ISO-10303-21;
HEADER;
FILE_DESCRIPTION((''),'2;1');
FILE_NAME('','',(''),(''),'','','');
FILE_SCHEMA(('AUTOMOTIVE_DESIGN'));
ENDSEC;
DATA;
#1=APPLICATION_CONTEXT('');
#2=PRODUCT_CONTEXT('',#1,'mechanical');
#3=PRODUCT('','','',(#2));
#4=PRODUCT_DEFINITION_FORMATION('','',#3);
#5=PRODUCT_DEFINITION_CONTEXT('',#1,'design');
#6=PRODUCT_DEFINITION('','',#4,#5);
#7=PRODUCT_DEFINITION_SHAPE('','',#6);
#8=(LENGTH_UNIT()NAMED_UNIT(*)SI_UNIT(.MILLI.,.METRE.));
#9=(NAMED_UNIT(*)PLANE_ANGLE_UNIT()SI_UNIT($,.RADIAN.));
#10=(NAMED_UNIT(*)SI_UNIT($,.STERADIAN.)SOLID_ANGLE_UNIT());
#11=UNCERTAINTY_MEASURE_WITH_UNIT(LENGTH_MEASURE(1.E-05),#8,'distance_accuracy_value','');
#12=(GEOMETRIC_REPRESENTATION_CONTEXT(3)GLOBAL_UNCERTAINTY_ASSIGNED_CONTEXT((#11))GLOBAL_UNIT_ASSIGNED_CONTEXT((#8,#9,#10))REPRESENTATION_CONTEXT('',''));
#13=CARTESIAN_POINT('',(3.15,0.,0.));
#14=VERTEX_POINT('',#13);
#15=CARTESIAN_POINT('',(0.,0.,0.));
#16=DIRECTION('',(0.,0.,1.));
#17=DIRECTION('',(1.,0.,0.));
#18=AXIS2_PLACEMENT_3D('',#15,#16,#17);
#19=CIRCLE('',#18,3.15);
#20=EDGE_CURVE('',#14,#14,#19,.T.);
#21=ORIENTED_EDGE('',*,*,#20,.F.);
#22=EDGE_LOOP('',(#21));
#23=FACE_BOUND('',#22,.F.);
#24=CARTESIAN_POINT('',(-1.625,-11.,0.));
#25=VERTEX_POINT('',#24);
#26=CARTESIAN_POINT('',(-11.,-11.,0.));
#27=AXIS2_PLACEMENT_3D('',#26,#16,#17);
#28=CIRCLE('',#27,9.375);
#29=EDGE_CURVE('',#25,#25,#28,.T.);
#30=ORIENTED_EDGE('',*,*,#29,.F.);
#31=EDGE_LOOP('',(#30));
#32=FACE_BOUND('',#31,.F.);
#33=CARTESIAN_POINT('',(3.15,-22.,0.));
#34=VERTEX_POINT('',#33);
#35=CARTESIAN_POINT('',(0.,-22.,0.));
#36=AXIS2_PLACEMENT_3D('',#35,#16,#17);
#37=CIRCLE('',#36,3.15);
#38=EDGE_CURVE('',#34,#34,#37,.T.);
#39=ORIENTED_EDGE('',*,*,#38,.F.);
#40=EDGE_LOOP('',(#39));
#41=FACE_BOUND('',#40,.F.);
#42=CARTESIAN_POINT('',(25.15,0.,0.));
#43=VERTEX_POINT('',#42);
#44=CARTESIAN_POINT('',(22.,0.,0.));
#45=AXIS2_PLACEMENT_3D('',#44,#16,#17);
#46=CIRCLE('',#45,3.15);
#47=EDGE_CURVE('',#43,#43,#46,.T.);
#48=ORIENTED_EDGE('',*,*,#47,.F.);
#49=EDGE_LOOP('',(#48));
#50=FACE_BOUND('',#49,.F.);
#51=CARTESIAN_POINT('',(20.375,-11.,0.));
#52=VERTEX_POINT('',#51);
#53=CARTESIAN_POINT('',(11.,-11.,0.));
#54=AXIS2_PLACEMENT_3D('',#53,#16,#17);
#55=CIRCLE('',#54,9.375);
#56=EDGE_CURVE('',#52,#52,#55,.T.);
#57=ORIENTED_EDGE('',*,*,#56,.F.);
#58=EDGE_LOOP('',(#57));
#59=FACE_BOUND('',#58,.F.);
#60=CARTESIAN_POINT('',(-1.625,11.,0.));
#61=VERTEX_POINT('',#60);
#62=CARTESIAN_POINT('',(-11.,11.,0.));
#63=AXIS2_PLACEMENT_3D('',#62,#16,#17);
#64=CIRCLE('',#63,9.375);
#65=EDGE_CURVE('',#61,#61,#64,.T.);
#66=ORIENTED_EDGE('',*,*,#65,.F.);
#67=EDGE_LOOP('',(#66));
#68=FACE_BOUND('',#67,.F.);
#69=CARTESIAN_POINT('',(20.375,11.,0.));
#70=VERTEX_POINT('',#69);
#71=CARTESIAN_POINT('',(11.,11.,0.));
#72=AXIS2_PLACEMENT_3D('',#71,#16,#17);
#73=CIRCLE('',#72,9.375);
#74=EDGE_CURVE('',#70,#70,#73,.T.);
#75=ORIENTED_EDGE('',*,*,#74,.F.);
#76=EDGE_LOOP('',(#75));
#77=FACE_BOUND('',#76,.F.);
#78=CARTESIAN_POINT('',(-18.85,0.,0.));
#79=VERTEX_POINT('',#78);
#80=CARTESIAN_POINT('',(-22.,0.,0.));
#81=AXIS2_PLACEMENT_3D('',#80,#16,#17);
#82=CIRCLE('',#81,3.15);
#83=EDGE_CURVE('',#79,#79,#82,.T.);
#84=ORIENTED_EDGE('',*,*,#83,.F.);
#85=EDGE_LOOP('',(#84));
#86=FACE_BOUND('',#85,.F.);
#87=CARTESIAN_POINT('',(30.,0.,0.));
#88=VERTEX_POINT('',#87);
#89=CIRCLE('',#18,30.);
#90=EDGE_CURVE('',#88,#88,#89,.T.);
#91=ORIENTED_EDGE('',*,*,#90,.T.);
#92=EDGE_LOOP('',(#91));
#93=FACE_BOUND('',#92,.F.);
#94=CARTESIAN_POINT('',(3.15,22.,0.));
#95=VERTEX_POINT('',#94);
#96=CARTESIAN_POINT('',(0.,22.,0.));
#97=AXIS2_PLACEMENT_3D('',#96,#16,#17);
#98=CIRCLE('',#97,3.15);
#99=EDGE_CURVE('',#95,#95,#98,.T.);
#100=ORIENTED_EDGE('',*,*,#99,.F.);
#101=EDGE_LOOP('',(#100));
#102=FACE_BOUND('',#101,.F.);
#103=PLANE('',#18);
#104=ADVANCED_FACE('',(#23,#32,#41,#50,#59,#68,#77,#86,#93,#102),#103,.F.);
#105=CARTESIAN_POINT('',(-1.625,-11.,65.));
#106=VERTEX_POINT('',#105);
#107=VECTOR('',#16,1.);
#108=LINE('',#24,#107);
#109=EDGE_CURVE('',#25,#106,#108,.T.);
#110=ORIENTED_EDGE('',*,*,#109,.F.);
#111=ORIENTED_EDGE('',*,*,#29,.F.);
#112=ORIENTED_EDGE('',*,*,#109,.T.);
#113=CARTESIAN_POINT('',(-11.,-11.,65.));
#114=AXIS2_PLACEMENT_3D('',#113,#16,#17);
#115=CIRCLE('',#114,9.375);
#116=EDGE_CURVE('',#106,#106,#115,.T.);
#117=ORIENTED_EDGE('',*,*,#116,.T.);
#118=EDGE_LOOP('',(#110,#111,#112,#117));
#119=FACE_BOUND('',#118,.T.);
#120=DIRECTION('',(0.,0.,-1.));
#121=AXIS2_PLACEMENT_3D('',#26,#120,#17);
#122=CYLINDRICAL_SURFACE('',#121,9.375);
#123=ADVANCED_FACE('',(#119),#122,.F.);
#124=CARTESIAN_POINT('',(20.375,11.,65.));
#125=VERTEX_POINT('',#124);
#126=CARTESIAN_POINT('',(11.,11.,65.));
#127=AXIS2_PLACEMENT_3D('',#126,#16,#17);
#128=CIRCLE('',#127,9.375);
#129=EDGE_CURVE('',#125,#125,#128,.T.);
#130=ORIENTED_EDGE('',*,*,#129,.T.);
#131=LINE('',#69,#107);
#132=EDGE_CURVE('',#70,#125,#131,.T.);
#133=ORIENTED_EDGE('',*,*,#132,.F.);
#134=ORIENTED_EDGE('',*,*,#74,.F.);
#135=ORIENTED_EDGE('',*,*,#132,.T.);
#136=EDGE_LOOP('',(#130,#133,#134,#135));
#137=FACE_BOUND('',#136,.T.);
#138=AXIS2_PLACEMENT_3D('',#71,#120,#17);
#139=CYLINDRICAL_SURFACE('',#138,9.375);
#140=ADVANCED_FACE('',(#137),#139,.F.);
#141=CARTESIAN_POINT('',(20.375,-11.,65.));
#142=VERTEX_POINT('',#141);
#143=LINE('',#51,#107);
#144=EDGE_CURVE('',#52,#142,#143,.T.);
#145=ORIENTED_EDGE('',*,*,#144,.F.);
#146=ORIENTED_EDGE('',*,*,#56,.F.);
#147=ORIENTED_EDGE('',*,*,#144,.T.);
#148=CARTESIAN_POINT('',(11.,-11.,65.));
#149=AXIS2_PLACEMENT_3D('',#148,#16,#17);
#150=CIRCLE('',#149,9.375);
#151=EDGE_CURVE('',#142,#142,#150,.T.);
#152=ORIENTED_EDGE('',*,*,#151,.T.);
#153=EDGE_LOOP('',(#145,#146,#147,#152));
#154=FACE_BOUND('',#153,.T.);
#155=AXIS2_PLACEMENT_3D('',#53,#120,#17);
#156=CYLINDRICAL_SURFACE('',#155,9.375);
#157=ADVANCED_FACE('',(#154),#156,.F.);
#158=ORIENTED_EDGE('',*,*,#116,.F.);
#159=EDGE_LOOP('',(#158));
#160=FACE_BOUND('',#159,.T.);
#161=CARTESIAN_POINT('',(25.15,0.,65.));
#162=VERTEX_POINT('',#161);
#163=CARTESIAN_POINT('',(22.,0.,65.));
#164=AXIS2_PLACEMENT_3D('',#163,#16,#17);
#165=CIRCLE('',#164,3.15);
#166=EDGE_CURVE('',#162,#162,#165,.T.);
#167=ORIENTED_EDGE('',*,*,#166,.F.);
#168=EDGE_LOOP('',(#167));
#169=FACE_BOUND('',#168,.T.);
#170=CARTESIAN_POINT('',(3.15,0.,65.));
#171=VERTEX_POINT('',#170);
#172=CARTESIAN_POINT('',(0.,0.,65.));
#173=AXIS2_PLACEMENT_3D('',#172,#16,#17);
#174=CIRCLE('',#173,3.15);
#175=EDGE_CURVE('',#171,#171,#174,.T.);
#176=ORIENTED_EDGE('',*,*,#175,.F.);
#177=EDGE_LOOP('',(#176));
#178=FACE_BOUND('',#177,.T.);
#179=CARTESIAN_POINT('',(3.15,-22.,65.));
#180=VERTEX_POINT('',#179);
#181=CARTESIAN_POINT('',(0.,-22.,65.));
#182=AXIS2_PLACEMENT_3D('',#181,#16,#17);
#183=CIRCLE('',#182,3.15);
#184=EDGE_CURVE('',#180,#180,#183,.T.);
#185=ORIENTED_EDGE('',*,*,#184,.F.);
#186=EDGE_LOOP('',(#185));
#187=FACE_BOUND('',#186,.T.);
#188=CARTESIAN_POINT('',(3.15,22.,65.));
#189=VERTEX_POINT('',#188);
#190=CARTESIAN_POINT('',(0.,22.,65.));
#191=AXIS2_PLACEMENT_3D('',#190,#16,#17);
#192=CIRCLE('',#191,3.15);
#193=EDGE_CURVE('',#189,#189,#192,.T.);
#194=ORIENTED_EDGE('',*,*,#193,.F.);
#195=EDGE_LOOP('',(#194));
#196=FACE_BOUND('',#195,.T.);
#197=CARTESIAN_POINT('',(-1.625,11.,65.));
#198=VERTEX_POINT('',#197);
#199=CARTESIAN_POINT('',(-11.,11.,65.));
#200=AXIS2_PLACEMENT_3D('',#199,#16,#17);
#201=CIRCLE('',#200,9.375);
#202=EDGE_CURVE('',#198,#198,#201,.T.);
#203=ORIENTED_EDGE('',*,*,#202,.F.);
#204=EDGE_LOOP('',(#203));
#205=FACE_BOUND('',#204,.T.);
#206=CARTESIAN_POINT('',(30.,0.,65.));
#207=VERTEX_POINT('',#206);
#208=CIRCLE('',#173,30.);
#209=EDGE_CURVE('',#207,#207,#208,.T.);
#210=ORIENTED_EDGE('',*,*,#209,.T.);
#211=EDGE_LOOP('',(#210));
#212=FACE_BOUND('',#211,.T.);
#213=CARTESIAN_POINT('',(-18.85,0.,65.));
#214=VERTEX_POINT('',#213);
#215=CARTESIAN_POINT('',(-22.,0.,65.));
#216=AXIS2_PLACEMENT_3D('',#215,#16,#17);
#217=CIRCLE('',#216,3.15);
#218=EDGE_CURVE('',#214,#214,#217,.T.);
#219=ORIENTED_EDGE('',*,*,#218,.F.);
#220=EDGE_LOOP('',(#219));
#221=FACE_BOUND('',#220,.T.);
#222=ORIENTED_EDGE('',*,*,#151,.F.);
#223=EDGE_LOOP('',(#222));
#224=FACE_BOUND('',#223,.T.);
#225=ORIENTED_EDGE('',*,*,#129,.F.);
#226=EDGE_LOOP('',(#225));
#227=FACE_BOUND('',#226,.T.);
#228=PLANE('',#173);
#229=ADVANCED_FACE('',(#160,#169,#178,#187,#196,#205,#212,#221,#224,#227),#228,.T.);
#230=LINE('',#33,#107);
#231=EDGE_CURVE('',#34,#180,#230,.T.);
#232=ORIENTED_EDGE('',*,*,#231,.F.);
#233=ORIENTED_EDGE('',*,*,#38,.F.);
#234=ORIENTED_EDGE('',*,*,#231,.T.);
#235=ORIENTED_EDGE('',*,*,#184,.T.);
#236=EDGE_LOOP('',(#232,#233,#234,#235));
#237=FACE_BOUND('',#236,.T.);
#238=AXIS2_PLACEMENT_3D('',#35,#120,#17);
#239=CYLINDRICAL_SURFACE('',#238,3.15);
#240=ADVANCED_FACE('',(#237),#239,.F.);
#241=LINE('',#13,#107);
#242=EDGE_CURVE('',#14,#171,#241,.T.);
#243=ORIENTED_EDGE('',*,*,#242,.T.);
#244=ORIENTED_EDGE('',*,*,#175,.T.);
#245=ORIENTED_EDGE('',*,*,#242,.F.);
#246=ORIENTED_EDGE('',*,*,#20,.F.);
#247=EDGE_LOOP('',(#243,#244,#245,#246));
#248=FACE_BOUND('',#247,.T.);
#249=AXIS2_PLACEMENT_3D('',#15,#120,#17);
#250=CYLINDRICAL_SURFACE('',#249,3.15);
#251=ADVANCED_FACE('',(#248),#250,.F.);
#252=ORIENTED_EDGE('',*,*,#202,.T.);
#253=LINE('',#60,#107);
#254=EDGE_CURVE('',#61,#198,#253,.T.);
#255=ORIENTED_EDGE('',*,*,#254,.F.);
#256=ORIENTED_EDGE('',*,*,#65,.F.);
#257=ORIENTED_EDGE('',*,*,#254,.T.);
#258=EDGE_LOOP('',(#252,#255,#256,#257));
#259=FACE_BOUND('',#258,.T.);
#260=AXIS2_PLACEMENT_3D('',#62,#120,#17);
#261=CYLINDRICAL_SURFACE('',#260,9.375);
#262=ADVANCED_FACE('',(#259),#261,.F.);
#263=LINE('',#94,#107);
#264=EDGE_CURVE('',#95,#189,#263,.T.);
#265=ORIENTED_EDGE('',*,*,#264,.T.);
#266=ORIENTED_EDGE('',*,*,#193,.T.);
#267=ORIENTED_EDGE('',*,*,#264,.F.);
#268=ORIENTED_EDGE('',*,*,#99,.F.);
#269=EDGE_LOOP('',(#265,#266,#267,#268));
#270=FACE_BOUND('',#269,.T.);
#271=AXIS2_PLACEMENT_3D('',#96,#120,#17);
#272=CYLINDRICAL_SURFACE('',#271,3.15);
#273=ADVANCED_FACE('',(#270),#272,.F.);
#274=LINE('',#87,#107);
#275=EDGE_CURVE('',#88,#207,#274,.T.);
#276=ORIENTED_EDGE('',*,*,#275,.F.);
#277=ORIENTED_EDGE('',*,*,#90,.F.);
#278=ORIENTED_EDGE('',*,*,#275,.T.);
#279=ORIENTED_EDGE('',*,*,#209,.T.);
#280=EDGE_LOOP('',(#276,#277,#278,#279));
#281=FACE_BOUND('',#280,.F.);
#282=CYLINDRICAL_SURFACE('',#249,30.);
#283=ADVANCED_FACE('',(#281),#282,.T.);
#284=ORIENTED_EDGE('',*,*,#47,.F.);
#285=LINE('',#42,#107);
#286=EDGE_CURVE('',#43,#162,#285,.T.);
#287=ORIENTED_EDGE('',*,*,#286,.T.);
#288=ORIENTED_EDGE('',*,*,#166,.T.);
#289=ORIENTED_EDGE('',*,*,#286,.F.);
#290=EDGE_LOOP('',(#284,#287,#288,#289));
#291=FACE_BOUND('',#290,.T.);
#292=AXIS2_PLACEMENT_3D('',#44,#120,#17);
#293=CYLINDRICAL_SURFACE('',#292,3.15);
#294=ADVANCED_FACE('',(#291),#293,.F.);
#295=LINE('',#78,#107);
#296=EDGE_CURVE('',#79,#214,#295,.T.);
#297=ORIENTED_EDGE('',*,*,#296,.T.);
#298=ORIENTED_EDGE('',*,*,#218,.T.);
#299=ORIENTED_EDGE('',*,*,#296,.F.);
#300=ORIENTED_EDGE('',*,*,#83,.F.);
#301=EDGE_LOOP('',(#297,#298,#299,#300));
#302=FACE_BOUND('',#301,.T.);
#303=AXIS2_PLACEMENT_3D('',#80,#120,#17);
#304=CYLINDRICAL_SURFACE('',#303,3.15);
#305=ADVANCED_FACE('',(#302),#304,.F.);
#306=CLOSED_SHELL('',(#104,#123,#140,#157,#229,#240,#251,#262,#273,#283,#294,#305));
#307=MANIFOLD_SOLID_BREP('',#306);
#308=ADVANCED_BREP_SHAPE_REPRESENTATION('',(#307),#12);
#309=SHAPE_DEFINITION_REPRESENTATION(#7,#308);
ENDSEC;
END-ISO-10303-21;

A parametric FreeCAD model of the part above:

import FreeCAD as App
import Part
import Sketcher

V = App.Vector
Q = App.Units.Quantity

doc = App.newDocument("Part")
params = doc.addObject("Spreadsheet::Sheet", "Params")
for row, (alias, value) in enumerate([
    ("sketch1_diameter", "60 mm"),
    ("sketch1_diameter2", "6.3 mm"),
    ("sketch1_diameter3", "18.75 mm"),
    ("pad1_length", "65 mm"),
], start=1):
    params.set(f"A{row}", alias)
    params.set(f"B{row}", "=" + value)
    params.setAlias(f"B{row}", alias)

body = doc.addObject("PartDesign::Body", "Body")

sketch1 = body.newObject("Sketcher::SketchObject", "Sketch")
sketch1.AttachmentSupport = (doc.getObject("XY_Plane"), [""])
sketch1.MapMode = "FlatFace"
sketch1.addGeometry([
    Part.Circle(V(0, 0, 0), V(0, 0, 1), 30),
    Part.Circle(V(-11, -11, 0), V(0, 0, 1), 9.375),
    Part.Circle(V(0, -22, 0), V(0, 0, 1), 3.15),
    Part.Circle(V(11, -11, 0), V(0, 0, 1), 9.375),
    Part.Circle(V(-22, 0, 0), V(0, 0, 1), 3.15),
    Part.Circle(V(-11, 11, 0), V(0, 0, 1), 9.375),
    Part.Circle(V(0, 0, 0), V(0, 0, 1), 3.15),
    Part.Circle(V(11, 11, 0), V(0, 0, 1), 9.375),
    Part.Circle(V(22, 0, 0), V(0, 0, 1), 3.15),
    Part.Circle(V(0, 22, 0), V(0, 0, 1), 3.15),
], False)
sketch1.addConstraint([
    Sketcher.Constraint("Coincident", 0, 3, -1, 1),
    Sketcher.Constraint("Coincident", 6, 3, -1, 1),
    Sketcher.Constraint("Equal", 1, 3),
    Sketcher.Constraint("Equal", 2, 4),
    Sketcher.Constraint("Equal", 3, 5),
    Sketcher.Constraint("Equal", 4, 6),
    Sketcher.Constraint("Equal", 5, 7),
    Sketcher.Constraint("Equal", 6, 8),
    Sketcher.Constraint("Equal", 8, 9),
    Sketcher.Constraint("Symmetric", 3, 3, 5, 3, -1, 1),
    Sketcher.Constraint("Symmetric", 1, 3, 7, 3, -1, 1),
    Sketcher.Constraint("Symmetric", 4, 3, 8, 3, -1, 1),
    Sketcher.Constraint("Symmetric", 2, 3, 9, 3, -1, 1),
    Sketcher.Constraint("Symmetric", 1, 3, 3, 3, -2),
    Sketcher.Constraint("PointOnObject", 2, 3, -2),
    Sketcher.Constraint("PointOnObject", 4, 3, -1),
    Sketcher.Constraint("Diameter", 0, Q("60 mm")),
    Sketcher.Constraint("Diameter", 2, Q("6.3 mm")),
    Sketcher.Constraint("Diameter", 1, Q("18.75 mm")),
    Sketcher.Constraint("DistanceX", 1, 3, -1, 1, Q("11 mm")),
    Sketcher.Constraint("DistanceY", 1, 3, -1, 1, Q("11 mm")),
    Sketcher.Constraint("DistanceY", 2, 3, -1, 1, Q("22 mm")),
    Sketcher.Constraint("DistanceX", 4, 3, -1, 1, Q("22 mm")),
])
sketch1.setExpression("Constraints[16]", "Params.sketch1_diameter")
sketch1.setExpression("Constraints[17]", "Params.sketch1_diameter2")
sketch1.setExpression("Constraints[18]", "Params.sketch1_diameter3")
pad1 = body.newObject("PartDesign::Pad", "Pad")
pad1.Profile = sketch1
pad1.setExpression("Length", "Params.pad1_length")

doc.recompute()
